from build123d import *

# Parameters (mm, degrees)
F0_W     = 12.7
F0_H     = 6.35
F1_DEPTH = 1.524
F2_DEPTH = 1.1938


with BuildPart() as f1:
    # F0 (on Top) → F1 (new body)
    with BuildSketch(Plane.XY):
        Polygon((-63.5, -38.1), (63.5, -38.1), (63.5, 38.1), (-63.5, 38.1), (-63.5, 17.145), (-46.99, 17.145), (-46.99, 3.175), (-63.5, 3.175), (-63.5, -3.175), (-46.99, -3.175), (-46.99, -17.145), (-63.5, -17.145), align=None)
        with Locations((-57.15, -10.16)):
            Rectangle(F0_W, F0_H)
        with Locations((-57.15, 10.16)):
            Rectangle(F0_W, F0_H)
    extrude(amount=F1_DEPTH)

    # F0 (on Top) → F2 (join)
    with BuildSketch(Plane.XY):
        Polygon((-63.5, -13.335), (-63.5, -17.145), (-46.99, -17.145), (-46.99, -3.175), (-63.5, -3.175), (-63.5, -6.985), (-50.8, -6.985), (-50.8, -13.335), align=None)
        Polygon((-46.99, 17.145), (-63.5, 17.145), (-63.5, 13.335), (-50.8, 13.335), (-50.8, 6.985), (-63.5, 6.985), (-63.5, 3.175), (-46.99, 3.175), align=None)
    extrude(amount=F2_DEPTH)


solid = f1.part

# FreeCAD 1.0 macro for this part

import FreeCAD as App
import Part
import Sketcher
from FreeCAD import Vector
Q = App.Units.Quantity

doc = App.newDocument("Part")
body = doc.addObject("PartDesign::Body", "Body")
body.AllowCompound = True

# Sketch on XY plane
sketch1 = body.newObject("Sketcher::SketchObject", "Sketch")
sketch1.AttachmentSupport = (doc.getObject("XY_Plane"), [""])
sketch1.MapMode = "FlatFace"
sketch1.addGeometry(Part.LineSegment(Vector(-64, -38, 0), Vector(64, -38, 0)), False)
sketch1.addGeometry(Part.LineSegment(Vector(64, -38, 0), Vector(64, 38, 0)), False)
sketch1.addGeometry(Part.LineSegment(Vector(64, 38, 0), Vector(-64, 38, 0)), False)
sketch1.addGeometry(Part.LineSegment(Vector(-64, 38, 0), Vector(-64, 17, 0)), False)
sketch1.addGeometry(Part.LineSegment(Vector(-64, 17, 0), Vector(-47, 17, 0)), False)
sketch1.addGeometry(Part.LineSegment(Vector(-47, 17, 0), Vector(-47, 3, 0)), False)
sketch1.addGeometry(Part.LineSegment(Vector(-47, 3, 0), Vector(-64, 3, 0)), False)
sketch1.addGeometry(Part.LineSegment(Vector(-64, 3, 0), Vector(-64, -3, 0)), False)
sketch1.addGeometry(Part.LineSegment(Vector(-64, -3, 0), Vector(-47, -3, 0)), False)
sketch1.addGeometry(Part.LineSegment(Vector(-47, -3, 0), Vector(-47, -17, 0)), False)
sketch1.addGeometry(Part.LineSegment(Vector(-47, -17, 0), Vector(-64, -17, 0)), False)
sketch1.addGeometry(Part.LineSegment(Vector(-64, -17, 0), Vector(-64, -38, 0)), False)
sketch1.addGeometry(Part.LineSegment(Vector(-64, -7, 0), Vector(-64, -13, 0)), False)
sketch1.addGeometry(Part.LineSegment(Vector(-64, -13, 0), Vector(-51, -13, 0)), False)
sketch1.addGeometry(Part.LineSegment(Vector(-51, -13, 0), Vector(-51, -7, 0)), False)
sketch1.addGeometry(Part.LineSegment(Vector(-51, -7, 0), Vector(-64, -7, 0)), False)
sketch1.addGeometry(Part.LineSegment(Vector(-64, 13, 0), Vector(-64, 7, 0)), False)
sketch1.addGeometry(Part.LineSegment(Vector(-64, 7, 0), Vector(-51, 7, 0)), False)
sketch1.addGeometry(Part.LineSegment(Vector(-51, 7, 0), Vector(-51, 13, 0)), False)
sketch1.addGeometry(Part.LineSegment(Vector(-51, 13, 0), Vector(-64, 13, 0)), False)
sketch1.addConstraint(Sketcher.Constraint("Coincident", 0, 2, 1, 1))
sketch1.addConstraint(Sketcher.Constraint("Coincident", 1, 2, 2, 1))
sketch1.addConstraint(Sketcher.Constraint("Coincident", 2, 2, 3, 1))
sketch1.addConstraint(Sketcher.Constraint("Coincident", 3, 2, 4, 1))
sketch1.addConstraint(Sketcher.Constraint("Coincident", 4, 2, 5, 1))
sketch1.addConstraint(Sketcher.Constraint("Coincident", 5, 2, 6, 1))
sketch1.addConstraint(Sketcher.Constraint("Coincident", 6, 2, 7, 1))
sketch1.addConstraint(Sketcher.Constraint("Coincident", 7, 2, 8, 1))
sketch1.addConstraint(Sketcher.Constraint("Coincident", 8, 2, 9, 1))
sketch1.addConstraint(Sketcher.Constraint("Coincident", 9, 2, 10, 1))
sketch1.addConstraint(Sketcher.Constraint("Coincident", 10, 2, 11, 1))
sketch1.addConstraint(Sketcher.Constraint("Coincident", 11, 2, 0, 1))
sketch1.addConstraint(Sketcher.Constraint("Coincident", 12, 2, 13, 1))
sketch1.addConstraint(Sketcher.Constraint("Coincident", 13, 2, 14, 1))
sketch1.addConstraint(Sketcher.Constraint("Coincident", 14, 2, 15, 1))
sketch1.addConstraint(Sketcher.Constraint("Coincident", 15, 2, 12, 1))
sketch1.addConstraint(Sketcher.Constraint("Coincident", 16, 2, 17, 1))
sketch1.addConstraint(Sketcher.Constraint("Coincident", 17, 2, 18, 1))
sketch1.addConstraint(Sketcher.Constraint("Coincident", 18, 2, 19, 1))
sketch1.addConstraint(Sketcher.Constraint("Coincident", 19, 2, 16, 1))
sketch1.addConstraint(Sketcher.Constraint("Horizontal", 0))
sketch1.addConstraint(Sketcher.Constraint("Vertical", 1))
sketch1.addConstraint(Sketcher.Constraint("Horizontal", 2))
sketch1.addConstraint(Sketcher.Constraint("Vertical", 3))
sketch1.addConstraint(Sketcher.Constraint("Horizontal", 4))
sketch1.addConstraint(Sketcher.Constraint("Vertical", 5))
sketch1.addConstraint(Sketcher.Constraint("Horizontal", 6))
sketch1.addConstraint(Sketcher.Constraint("Vertical", 7))
sketch1.addConstraint(Sketcher.Constraint("Horizontal", 8))
sketch1.addConstraint(Sketcher.Constraint("Vertical", 9))
sketch1.addConstraint(Sketcher.Constraint("Horizontal", 10))
sketch1.addConstraint(Sketcher.Constraint("Vertical", 11))
sketch1.addConstraint(Sketcher.Constraint("Vertical", 12))
sketch1.addConstraint(Sketcher.Constraint("Horizontal", 13))
sketch1.addConstraint(Sketcher.Constraint("Vertical", 14))
sketch1.addConstraint(Sketcher.Constraint("Horizontal", 15))
sketch1.addConstraint(Sketcher.Constraint("Vertical", 16))
sketch1.addConstraint(Sketcher.Constraint("Horizontal", 17))
sketch1.addConstraint(Sketcher.Constraint("Vertical", 18))
sketch1.addConstraint(Sketcher.Constraint("Horizontal", 19))
sketch1.addConstraint(Sketcher.Constraint("Symmetric", 0, 2, 2, 2, -1, 1))
sketch1.addConstraint(Sketcher.Constraint("Symmetric", 5, 2, 8, 2, -1))
sketch1.addConstraint(Sketcher.Constraint("Symmetric", 3, 2, 10, 2, -1))
sketch1.addConstraint(Sketcher.Constraint("Symmetric", 15, 2, 16, 2, -1))
sketch1.addConstraint(Sketcher.Constraint("Symmetric", 13, 2, 18, 2, -1))
sketch1.addConstraint(Sketcher.Constraint("Vertical", 3, 2, 6, 2))
sketch1.addConstraint(Sketcher.Constraint("Vertical", 11, 2, 12, 2))
sketch1.addConstraint(Sketcher.Constraint("Equal", 7, 12))
sketch1.addConstraint(Sketcher.Constraint("DistanceX", 0, 1, 0, 2, Q("5 in")))
sketch1.addConstraint(Sketcher.Constraint("DistanceY", 1, 1, 1, 2, Q("3 in")))
sketch1.addConstraint(Sketcher.Constraint("DistanceX", 13, 1, 13, 2, Q("0.5 in")))
sketch1.addConstraint(Sketcher.Constraint("DistanceX", 4, 1, 4, 2, Q("0.65 in")))
sketch1.addConstraint(Sketcher.Constraint("DistanceY", 5, 2, 5, 1, Q("0.55 in")))
sketch1.addConstraint(Sketcher.Constraint("DistanceY", 7, 2, 7, 1, Q("0.25 in")))
sketch1.addConstraint(Sketcher.Constraint("DistanceY", 12, 2, 7, 2, Q("0.4 in")))
pad1 = body.newObject("PartDesign::Pad", "Pad")
pad1.Profile = sketch1
pad1.Length = Q("0.06 in")

# Sketch on XY plane
sketch2 = body.newObject("Sketcher::SketchObject", "Sketch001")
sketch2.AttachmentSupport = (doc.getObject("XY_Plane"), [""])
sketch2.MapMode = "FlatFace"
sketch2.addGeometry(Part.LineSegment(Vector(-63.5, -13.3, 0), Vector(-63.5, -17.1, 0)), False)
sketch2.addGeometry(Part.LineSegment(Vector(-63.5, -17.1, 0), Vector(-47, -17.1, 0)), False)
sketch2.addGeometry(Part.LineSegment(Vector(-47, -17.1, 0), Vector(-47, -3.2, 0)), False)
sketch2.addGeometry(Part.LineSegment(Vector(-47, -3.2, 0), Vector(-63.5, -3.2, 0)), False)
sketch2.addGeometry(Part.LineSegment(Vector(-63.5, -3.2, 0), Vector(-63.5, -7, 0)), False)
sketch2.addGeometry(Part.LineSegment(Vector(-63.5, -7, 0), Vector(-50.8, -7, 0)), False)
sketch2.addGeometry(Part.LineSegment(Vector(-50.8, -7, 0), Vector(-50.8, -13.3, 0)), False)
sketch2.addGeometry(Part.LineSegment(Vector(-50.8, -13.3, 0), Vector(-63.5, -13.3, 0)), False)
sketch2.addGeometry(Part.LineSegment(Vector(-47, 17.1, 0), Vector(-63.5, 17.1, 0)), False)
sketch2.addGeometry(Part.LineSegment(Vector(-63.5, 17.1, 0), Vector(-63.5, 13.3, 0)), False)
sketch2.addGeometry(Part.LineSegment(Vector(-63.5, 13.3, 0), Vector(-50.8, 13.3, 0)), False)
sketch2.addGeometry(Part.LineSegment(Vector(-50.8, 13.3, 0), Vector(-50.8, 7, 0)), False)
sketch2.addGeometry(Part.LineSegment(Vector(-50.8, 7, 0), Vector(-63.5, 7, 0)), False)
sketch2.addGeometry(Part.LineSegment(Vector(-63.5, 7, 0), Vector(-63.5, 3.2, 0)), False)
sketch2.addGeometry(Part.LineSegment(Vector(-63.5, 3.2, 0), Vector(-47, 3.2, 0)), False)
sketch2.addGeometry(Part.LineSegment(Vector(-47, 3.2, 0), Vector(-47, 17.1, 0)), False)
sketch2.addConstraint(Sketcher.Constraint("Coincident", 0, 2, 1, 1))
sketch2.addConstraint(Sketcher.Constraint("Coincident", 1, 2, 2, 1))
sketch2.addConstraint(Sketcher.Constraint("Coincident", 2, 2, 3, 1))
sketch2.addConstraint(Sketcher.Constraint("Coincident", 3, 2, 4, 1))
sketch2.addConstraint(Sketcher.Constraint("Coincident", 4, 2, 5, 1))
sketch2.addConstraint(Sketcher.Constraint("Coincident", 5, 2, 6, 1))
sketch2.addConstraint(Sketcher.Constraint("Coincident", 6, 2, 7, 1))
sketch2.addConstraint(Sketcher.Constraint("Coincident", 7, 2, 0, 1))
sketch2.addConstraint(Sketcher.Constraint("Coincident", 8, 2, 9, 1))
sketch2.addConstraint(Sketcher.Constraint("Coincident", 9, 2, 10, 1))
sketch2.addConstraint(Sketcher.Constraint("Coincident", 10, 2, 11, 1))
sketch2.addConstraint(Sketcher.Constraint("Coincident", 11, 2, 12, 1))
sketch2.addConstraint(Sketcher.Constraint("Coincident", 12, 2, 13, 1))
sketch2.addConstraint(Sketcher.Constraint("Coincident", 13, 2, 14, 1))
sketch2.addConstraint(Sketcher.Constraint("Coincident", 14, 2, 15, 1))
sketch2.addConstraint(Sketcher.Constraint("Coincident", 15, 2, 8, 1))
sketch2.addConstraint(Sketcher.Constraint("Vertical", 0))
sketch2.addConstraint(Sketcher.Constraint("Horizontal", 1))
sketch2.addConstraint(Sketcher.Constraint("Vertical", 2))
sketch2.addConstraint(Sketcher.Constraint("Horizontal", 3))
sketch2.addConstraint(Sketcher.Constraint("Vertical", 4))
sketch2.addConstraint(Sketcher.Constraint("Horizontal", 5))
sketch2.addConstraint(Sketcher.Constraint("Vertical", 6))
sketch2.addConstraint(Sketcher.Constraint("Horizontal", 7))
sketch2.addConstraint(Sketcher.Constraint("Horizontal", 8))
sketch2.addConstraint(Sketcher.Constraint("Vertical", 9))
sketch2.addConstraint(Sketcher.Constraint("Horizontal", 10))
sketch2.addConstraint(Sketcher.Constraint("Vertical", 11))
sketch2.addConstraint(Sketcher.Constraint("Horizontal", 12))
sketch2.addConstraint(Sketcher.Constraint("Vertical", 13))
sketch2.addConstraint(Sketcher.Constraint("Horizontal", 14))
sketch2.addConstraint(Sketcher.Constraint("Vertical", 15))
sketch2.addConstraint(Sketcher.Constraint("Symmetric", 0, 2, 8, 2, -1))
sketch2.addConstraint(Sketcher.Constraint("Symmetric", 6, 2, 10, 2, -1))
sketch2.addConstraint(Sketcher.Constraint("Symmetric", 4, 2, 12, 2, -1))
sketch2.addConstraint(Sketcher.Constraint("Symmetric", 2, 2, 14, 2, -1))
sketch2.addConstraint(Sketcher.Constraint("Vertical", 0, 2, 3, 2))
sketch2.addConstraint(Sketcher.Constraint("Equal", 0, 4))
sketch2.addConstraint(Sketcher.Constraint("DistanceX", 5, 1, 5, 2, Q("0.5 in")))
sketch2.addConstraint(Sketcher.Constraint("DistanceX", 5, 2, -1, 1, Q("2 in")))
sketch2.addConstraint(Sketcher.Constraint("DistanceX", 1, 1, 1, 2, Q("0.65 in")))
sketch2.addConstraint(Sketcher.Constraint("DistanceY", 0, 2, 0, 1, Q("0.15 in")))
sketch2.addConstraint(Sketcher.Constraint("DistanceY", 2, 1, 2, 2, Q("0.55 in")))
sketch2.addConstraint(Sketcher.Constraint("DistanceY", 3, 2, 8, 2, Q("0.8 in")))
pad2 = body.newObject("PartDesign::Pad", "Pad001")
pad2.Profile = sketch2
pad2.Length = Q("0.047 in")

doc.recompute()
